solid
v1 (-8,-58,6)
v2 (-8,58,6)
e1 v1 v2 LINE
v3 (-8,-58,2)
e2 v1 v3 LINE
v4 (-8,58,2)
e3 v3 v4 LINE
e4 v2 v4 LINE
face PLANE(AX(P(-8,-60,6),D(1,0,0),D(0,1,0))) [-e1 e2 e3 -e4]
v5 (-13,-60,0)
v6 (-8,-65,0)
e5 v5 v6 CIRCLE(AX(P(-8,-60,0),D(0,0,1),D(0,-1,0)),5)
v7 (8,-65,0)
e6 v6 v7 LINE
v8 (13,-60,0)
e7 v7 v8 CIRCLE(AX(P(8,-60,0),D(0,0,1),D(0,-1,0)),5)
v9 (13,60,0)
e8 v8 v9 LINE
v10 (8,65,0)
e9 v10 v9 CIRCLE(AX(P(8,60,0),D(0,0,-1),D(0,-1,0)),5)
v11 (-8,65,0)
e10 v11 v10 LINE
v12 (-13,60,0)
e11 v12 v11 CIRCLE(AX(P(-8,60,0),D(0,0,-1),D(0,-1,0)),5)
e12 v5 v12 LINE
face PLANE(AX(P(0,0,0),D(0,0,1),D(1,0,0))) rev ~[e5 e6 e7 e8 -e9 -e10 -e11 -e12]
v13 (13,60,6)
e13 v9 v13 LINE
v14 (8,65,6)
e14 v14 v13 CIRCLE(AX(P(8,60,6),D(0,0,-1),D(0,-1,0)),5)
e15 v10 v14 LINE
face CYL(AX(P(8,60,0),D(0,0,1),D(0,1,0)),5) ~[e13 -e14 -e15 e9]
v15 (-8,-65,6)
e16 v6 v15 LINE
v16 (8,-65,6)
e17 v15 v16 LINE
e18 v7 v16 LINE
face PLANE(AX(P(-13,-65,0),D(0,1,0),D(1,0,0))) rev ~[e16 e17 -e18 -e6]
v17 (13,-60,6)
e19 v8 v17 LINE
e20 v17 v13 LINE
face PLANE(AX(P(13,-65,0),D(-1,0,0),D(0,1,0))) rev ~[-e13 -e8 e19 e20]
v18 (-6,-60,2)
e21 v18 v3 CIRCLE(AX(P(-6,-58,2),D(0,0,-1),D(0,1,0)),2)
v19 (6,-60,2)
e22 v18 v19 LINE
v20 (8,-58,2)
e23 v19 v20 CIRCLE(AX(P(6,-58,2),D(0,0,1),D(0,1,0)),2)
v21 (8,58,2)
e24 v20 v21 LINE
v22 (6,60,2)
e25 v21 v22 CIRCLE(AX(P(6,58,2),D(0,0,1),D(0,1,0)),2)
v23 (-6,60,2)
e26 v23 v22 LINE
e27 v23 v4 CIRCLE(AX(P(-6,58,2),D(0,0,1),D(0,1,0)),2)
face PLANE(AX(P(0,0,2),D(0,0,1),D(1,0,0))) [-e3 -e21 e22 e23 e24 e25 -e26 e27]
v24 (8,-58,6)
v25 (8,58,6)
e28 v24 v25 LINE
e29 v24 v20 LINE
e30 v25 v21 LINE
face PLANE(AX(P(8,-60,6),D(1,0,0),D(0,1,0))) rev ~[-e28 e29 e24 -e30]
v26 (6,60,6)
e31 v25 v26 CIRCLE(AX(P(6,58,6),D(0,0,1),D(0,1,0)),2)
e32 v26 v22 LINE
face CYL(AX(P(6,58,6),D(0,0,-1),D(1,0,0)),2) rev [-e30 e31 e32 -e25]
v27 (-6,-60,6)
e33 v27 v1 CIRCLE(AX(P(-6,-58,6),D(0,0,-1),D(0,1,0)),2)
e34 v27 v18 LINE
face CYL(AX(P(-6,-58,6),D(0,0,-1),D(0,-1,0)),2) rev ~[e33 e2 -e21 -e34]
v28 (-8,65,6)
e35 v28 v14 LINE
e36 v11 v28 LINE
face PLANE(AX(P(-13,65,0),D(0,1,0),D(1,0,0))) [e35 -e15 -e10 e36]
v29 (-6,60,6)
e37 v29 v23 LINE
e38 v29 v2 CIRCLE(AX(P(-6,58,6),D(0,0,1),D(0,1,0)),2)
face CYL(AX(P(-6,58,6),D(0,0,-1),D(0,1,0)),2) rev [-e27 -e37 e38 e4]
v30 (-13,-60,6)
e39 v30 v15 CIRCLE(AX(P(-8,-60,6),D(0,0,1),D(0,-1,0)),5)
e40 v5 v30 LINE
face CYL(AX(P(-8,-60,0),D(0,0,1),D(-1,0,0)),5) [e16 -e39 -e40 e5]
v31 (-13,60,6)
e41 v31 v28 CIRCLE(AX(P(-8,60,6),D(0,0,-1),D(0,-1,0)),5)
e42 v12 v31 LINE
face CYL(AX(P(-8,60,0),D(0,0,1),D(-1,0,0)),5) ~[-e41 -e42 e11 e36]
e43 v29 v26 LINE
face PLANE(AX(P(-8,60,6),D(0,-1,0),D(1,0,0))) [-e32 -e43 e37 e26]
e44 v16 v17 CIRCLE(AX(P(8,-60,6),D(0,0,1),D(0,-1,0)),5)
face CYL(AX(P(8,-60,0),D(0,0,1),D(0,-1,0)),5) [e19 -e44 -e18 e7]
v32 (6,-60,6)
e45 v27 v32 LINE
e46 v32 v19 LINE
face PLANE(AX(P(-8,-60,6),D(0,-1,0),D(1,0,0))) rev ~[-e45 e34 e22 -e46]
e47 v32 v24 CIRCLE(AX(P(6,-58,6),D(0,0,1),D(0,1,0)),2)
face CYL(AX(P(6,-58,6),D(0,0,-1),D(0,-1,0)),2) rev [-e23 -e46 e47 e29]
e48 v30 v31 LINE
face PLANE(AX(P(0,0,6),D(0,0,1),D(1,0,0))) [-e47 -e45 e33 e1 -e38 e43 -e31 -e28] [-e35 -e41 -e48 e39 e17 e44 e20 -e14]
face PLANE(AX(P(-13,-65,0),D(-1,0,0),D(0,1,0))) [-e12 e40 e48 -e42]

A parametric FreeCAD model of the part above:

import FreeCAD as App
import Part
import Sketcher
Q = App.Units.Quantity


def edges_at(feature, points):
    """Names of the edges that pass closest to the given points."""
    edges = feature.Shape.Edges
    near = lambda p: min(range(len(edges)), key=lambda i: edges[i].distToShape(Part.Vertex(*p))[0])
    return sorted({f"Edge{near(p) + 1}" for p in points})

doc = App.newDocument("Part")
body = doc.addObject("PartDesign::Body", "Body")

sketch1 = body.newObject("Sketcher::SketchObject", "Sketch")
sketch1.AttachmentSupport = (doc.getObject("XY_Plane"), [""])
sketch1.MapMode = "FlatFace"
sketch1.addGeometry(Part.LineSegment(App.Vector(-13, 65, 0), App.Vector(-13, -65, 0)), False)
sketch1.addGeometry(Part.LineSegment(App.Vector(-13, -65, 0), App.Vector(13, -65, 0)), False)
sketch1.addGeometry(Part.LineSegment(App.Vector(13, -65, 0), App.Vector(13, 65, 0)), False)
sketch1.addGeometry(Part.LineSegment(App.Vector(13, 65, 0), App.Vector(-13, 65, 0)), False)
sketch1.addConstraint(Sketcher.Constraint("Coincident", 0, 2, 1, 1))
sketch1.addConstraint(Sketcher.Constraint("Coincident", 1, 2, 2, 1))
sketch1.addConstraint(Sketcher.Constraint("Coincident", 2, 2, 3, 1))
sketch1.addConstraint(Sketcher.Constraint("Coincident", 3, 2, 0, 1))
sketch1.addConstraint(Sketcher.Constraint("Vertical", 0))
sketch1.addConstraint(Sketcher.Constraint("Horizontal", 1))
sketch1.addConstraint(Sketcher.Constraint("Vertical", 2))
sketch1.addConstraint(Sketcher.Constraint("Horizontal", 3))
sketch1.addConstraint(Sketcher.Constraint("Symmetric", 0, 2, 2, 2, -1, 1))
sketch1.addConstraint(Sketcher.Constraint("DistanceX", 1, 1, 1, 2, Q("26 mm")))
sketch1.addConstraint(Sketcher.Constraint("DistanceY", 0, 2, 0, 1, Q("130 mm")))
pad1 = body.newObject("PartDesign::Pad", "Pad")
pad1.Profile = sketch1
pad1.Length = 6

sketch2 = body.newObject("Sketcher::SketchObject", "Sketch001")
sketch2.AttachmentSupport = (doc.getObject("XY_Plane"), [""])
sketch2.MapMode = "FlatFace"
sketch2.AttachmentOffset = App.Placement(App.Vector(0, 0, 6), App.Rotation())
sketch2.addGeometry(Part.LineSegment(App.Vector(-8, 60, 0), App.Vector(-8, -60, 0)), False)
sketch2.addGeometry(Part.LineSegment(App.Vector(-8, -60, 0), App.Vector(8, -60, 0)), False)
sketch2.addGeometry(Part.LineSegment(App.Vector(8, -60, 0), App.Vector(8, 60, 0)), False)
sketch2.addGeometry(Part.LineSegment(App.Vector(8, 60, 0), App.Vector(-8, 60, 0)), False)
sketch2.addConstraint(Sketcher.Constraint("Coincident", 0, 2, 1, 1))
sketch2.addConstraint(Sketcher.Constraint("Coincident", 1, 2, 2, 1))
sketch2.addConstraint(Sketcher.Constraint("Coincident", 2, 2, 3, 1))
sketch2.addConstraint(Sketcher.Constraint("Coincident", 3, 2, 0, 1))
sketch2.addConstraint(Sketcher.Constraint("Vertical", 0))
sketch2.addConstraint(Sketcher.Constraint("Horizontal", 1))
sketch2.addConstraint(Sketcher.Constraint("Vertical", 2))
sketch2.addConstraint(Sketcher.Constraint("Horizontal", 3))
sketch2.addConstraint(Sketcher.Constraint("Symmetric", 0, 2, 2, 2, -1, 1))
sketch2.addConstraint(Sketcher.Constraint("DistanceX", 1, 1, 1, 2, Q("16 mm")))
sketch2.addConstraint(Sketcher.Constraint("DistanceY", 0, 2, 0, 1, Q("120 mm")))
pocket1 = body.newObject("PartDesign::Pocket", "Pocket")
pocket1.Profile = sketch2
pocket1.Length = 4
doc.recompute()

fillet = body.newObject("PartDesign::Fillet", "Fillet")
fillet.Base = (pocket1, edges_at(pocket1, [
    (-8, 60, 4),
    (-8, -60, 4),
    (8, -60, 4),
    (8, 60, 4),
]))
fillet.Radius = 2
doc.recompute()

fillet2 = body.newObject("PartDesign::Fillet", "Fillet001")
fillet2.Base = (fillet, edges_at(fillet, [
    (-13, -65, 3),
    (13, -65, 3),
    (13, 65, 3),
    (-13, 65, 3),
]))
fillet2.Radius = 5

doc.recompute()
